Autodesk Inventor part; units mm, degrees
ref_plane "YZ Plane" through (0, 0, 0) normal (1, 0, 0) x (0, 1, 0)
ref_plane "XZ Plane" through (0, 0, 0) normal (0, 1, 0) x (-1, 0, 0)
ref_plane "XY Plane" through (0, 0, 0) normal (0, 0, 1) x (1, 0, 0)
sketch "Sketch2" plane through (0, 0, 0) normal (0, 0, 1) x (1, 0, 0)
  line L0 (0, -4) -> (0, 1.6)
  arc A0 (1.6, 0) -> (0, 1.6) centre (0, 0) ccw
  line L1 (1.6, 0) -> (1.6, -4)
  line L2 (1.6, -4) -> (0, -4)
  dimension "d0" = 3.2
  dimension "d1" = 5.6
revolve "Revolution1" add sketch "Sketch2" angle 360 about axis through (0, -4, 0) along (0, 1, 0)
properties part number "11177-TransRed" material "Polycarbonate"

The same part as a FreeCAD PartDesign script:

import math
import FreeCAD as App
import Part
import Sketcher
from FreeCAD import Vector

doc = App.newDocument("Part")
params = doc.addObject("Spreadsheet::Sheet", "Params")
for row, (alias, value) in enumerate([
    ("sketch1_radius", "1.6 mm"),
    ("sketch1_height", "5.6 mm"),
    ("revolution_angle", "360 deg"),
], start=1):
    params.set(f"A{row}", alias)
    params.set(f"B{row}", "=" + value)
    params.setAlias(f"B{row}", alias)

body = doc.addObject("PartDesign::Body", "Body")

# Sketch on XY plane
sketch1 = doc.addObject("Sketcher::SketchObject", "Sketch")
body.addObject(sketch1)
sketch1.AttachmentSupport = (doc.XY_Plane, [""])
sketch1.MapMode = "FlatFace"
sketch1.addGeometry(Part.LineSegment(Vector(0, 1.6, 0), Vector(0, -4, 0)), False)
sketch1.addGeometry(Part.LineSegment(Vector(0, -4, 0), Vector(1.6, -4, 0)), False)
sketch1.addGeometry(Part.LineSegment(Vector(1.6, -4, 0), Vector(1.6, 0, 0)), False)
sketch1.addGeometry(Part.ArcOfCircle(Part.Circle(Vector(0, 0, 0), Vector(0, 0, 1), 1.6), math.radians(0), math.radians(90)), False)
sketch1.addConstraint(Sketcher.Constraint("Coincident", 0, 2, 1, 1))
sketch1.addConstraint(Sketcher.Constraint("Coincident", 1, 2, 2, 1))
sketch1.addConstraint(Sketcher.Constraint("Tangent", 2, 2, 3, 1))
sketch1.addConstraint(Sketcher.Constraint("Coincident", 3, 2, 0, 1))
sketch1.addConstraint(Sketcher.Constraint("Vertical", 0))
sketch1.addConstraint(Sketcher.Constraint("Horizontal", 1))
sketch1.addConstraint(Sketcher.Constraint("Vertical", 2))
sketch1.addConstraint(Sketcher.Constraint("Coincident", 3, 3, -1, 1))
sketch1.addConstraint(Sketcher.Constraint("PointOnObject", 0, 2, -2))
sketch1.addConstraint(Sketcher.Constraint("Radius", 3, 1.6))
sketch1.addConstraint(Sketcher.Constraint("DistanceY", 0, 2, 0, 1, 5.6))
sketch1.setExpression("Constraints[9]", "Params.sketch1_radius")
sketch1.setExpression("Constraints[10]", "Params.sketch1_height")
revolution = doc.addObject("PartDesign::Revolution", "Revolution")
body.addObject(revolution)
revolution.Profile = sketch1
revolution.ReferenceAxis = (sketch1, ["V_Axis"])
revolution.setExpression("Angle", "Params.revolution_angle")

doc.recompute()
